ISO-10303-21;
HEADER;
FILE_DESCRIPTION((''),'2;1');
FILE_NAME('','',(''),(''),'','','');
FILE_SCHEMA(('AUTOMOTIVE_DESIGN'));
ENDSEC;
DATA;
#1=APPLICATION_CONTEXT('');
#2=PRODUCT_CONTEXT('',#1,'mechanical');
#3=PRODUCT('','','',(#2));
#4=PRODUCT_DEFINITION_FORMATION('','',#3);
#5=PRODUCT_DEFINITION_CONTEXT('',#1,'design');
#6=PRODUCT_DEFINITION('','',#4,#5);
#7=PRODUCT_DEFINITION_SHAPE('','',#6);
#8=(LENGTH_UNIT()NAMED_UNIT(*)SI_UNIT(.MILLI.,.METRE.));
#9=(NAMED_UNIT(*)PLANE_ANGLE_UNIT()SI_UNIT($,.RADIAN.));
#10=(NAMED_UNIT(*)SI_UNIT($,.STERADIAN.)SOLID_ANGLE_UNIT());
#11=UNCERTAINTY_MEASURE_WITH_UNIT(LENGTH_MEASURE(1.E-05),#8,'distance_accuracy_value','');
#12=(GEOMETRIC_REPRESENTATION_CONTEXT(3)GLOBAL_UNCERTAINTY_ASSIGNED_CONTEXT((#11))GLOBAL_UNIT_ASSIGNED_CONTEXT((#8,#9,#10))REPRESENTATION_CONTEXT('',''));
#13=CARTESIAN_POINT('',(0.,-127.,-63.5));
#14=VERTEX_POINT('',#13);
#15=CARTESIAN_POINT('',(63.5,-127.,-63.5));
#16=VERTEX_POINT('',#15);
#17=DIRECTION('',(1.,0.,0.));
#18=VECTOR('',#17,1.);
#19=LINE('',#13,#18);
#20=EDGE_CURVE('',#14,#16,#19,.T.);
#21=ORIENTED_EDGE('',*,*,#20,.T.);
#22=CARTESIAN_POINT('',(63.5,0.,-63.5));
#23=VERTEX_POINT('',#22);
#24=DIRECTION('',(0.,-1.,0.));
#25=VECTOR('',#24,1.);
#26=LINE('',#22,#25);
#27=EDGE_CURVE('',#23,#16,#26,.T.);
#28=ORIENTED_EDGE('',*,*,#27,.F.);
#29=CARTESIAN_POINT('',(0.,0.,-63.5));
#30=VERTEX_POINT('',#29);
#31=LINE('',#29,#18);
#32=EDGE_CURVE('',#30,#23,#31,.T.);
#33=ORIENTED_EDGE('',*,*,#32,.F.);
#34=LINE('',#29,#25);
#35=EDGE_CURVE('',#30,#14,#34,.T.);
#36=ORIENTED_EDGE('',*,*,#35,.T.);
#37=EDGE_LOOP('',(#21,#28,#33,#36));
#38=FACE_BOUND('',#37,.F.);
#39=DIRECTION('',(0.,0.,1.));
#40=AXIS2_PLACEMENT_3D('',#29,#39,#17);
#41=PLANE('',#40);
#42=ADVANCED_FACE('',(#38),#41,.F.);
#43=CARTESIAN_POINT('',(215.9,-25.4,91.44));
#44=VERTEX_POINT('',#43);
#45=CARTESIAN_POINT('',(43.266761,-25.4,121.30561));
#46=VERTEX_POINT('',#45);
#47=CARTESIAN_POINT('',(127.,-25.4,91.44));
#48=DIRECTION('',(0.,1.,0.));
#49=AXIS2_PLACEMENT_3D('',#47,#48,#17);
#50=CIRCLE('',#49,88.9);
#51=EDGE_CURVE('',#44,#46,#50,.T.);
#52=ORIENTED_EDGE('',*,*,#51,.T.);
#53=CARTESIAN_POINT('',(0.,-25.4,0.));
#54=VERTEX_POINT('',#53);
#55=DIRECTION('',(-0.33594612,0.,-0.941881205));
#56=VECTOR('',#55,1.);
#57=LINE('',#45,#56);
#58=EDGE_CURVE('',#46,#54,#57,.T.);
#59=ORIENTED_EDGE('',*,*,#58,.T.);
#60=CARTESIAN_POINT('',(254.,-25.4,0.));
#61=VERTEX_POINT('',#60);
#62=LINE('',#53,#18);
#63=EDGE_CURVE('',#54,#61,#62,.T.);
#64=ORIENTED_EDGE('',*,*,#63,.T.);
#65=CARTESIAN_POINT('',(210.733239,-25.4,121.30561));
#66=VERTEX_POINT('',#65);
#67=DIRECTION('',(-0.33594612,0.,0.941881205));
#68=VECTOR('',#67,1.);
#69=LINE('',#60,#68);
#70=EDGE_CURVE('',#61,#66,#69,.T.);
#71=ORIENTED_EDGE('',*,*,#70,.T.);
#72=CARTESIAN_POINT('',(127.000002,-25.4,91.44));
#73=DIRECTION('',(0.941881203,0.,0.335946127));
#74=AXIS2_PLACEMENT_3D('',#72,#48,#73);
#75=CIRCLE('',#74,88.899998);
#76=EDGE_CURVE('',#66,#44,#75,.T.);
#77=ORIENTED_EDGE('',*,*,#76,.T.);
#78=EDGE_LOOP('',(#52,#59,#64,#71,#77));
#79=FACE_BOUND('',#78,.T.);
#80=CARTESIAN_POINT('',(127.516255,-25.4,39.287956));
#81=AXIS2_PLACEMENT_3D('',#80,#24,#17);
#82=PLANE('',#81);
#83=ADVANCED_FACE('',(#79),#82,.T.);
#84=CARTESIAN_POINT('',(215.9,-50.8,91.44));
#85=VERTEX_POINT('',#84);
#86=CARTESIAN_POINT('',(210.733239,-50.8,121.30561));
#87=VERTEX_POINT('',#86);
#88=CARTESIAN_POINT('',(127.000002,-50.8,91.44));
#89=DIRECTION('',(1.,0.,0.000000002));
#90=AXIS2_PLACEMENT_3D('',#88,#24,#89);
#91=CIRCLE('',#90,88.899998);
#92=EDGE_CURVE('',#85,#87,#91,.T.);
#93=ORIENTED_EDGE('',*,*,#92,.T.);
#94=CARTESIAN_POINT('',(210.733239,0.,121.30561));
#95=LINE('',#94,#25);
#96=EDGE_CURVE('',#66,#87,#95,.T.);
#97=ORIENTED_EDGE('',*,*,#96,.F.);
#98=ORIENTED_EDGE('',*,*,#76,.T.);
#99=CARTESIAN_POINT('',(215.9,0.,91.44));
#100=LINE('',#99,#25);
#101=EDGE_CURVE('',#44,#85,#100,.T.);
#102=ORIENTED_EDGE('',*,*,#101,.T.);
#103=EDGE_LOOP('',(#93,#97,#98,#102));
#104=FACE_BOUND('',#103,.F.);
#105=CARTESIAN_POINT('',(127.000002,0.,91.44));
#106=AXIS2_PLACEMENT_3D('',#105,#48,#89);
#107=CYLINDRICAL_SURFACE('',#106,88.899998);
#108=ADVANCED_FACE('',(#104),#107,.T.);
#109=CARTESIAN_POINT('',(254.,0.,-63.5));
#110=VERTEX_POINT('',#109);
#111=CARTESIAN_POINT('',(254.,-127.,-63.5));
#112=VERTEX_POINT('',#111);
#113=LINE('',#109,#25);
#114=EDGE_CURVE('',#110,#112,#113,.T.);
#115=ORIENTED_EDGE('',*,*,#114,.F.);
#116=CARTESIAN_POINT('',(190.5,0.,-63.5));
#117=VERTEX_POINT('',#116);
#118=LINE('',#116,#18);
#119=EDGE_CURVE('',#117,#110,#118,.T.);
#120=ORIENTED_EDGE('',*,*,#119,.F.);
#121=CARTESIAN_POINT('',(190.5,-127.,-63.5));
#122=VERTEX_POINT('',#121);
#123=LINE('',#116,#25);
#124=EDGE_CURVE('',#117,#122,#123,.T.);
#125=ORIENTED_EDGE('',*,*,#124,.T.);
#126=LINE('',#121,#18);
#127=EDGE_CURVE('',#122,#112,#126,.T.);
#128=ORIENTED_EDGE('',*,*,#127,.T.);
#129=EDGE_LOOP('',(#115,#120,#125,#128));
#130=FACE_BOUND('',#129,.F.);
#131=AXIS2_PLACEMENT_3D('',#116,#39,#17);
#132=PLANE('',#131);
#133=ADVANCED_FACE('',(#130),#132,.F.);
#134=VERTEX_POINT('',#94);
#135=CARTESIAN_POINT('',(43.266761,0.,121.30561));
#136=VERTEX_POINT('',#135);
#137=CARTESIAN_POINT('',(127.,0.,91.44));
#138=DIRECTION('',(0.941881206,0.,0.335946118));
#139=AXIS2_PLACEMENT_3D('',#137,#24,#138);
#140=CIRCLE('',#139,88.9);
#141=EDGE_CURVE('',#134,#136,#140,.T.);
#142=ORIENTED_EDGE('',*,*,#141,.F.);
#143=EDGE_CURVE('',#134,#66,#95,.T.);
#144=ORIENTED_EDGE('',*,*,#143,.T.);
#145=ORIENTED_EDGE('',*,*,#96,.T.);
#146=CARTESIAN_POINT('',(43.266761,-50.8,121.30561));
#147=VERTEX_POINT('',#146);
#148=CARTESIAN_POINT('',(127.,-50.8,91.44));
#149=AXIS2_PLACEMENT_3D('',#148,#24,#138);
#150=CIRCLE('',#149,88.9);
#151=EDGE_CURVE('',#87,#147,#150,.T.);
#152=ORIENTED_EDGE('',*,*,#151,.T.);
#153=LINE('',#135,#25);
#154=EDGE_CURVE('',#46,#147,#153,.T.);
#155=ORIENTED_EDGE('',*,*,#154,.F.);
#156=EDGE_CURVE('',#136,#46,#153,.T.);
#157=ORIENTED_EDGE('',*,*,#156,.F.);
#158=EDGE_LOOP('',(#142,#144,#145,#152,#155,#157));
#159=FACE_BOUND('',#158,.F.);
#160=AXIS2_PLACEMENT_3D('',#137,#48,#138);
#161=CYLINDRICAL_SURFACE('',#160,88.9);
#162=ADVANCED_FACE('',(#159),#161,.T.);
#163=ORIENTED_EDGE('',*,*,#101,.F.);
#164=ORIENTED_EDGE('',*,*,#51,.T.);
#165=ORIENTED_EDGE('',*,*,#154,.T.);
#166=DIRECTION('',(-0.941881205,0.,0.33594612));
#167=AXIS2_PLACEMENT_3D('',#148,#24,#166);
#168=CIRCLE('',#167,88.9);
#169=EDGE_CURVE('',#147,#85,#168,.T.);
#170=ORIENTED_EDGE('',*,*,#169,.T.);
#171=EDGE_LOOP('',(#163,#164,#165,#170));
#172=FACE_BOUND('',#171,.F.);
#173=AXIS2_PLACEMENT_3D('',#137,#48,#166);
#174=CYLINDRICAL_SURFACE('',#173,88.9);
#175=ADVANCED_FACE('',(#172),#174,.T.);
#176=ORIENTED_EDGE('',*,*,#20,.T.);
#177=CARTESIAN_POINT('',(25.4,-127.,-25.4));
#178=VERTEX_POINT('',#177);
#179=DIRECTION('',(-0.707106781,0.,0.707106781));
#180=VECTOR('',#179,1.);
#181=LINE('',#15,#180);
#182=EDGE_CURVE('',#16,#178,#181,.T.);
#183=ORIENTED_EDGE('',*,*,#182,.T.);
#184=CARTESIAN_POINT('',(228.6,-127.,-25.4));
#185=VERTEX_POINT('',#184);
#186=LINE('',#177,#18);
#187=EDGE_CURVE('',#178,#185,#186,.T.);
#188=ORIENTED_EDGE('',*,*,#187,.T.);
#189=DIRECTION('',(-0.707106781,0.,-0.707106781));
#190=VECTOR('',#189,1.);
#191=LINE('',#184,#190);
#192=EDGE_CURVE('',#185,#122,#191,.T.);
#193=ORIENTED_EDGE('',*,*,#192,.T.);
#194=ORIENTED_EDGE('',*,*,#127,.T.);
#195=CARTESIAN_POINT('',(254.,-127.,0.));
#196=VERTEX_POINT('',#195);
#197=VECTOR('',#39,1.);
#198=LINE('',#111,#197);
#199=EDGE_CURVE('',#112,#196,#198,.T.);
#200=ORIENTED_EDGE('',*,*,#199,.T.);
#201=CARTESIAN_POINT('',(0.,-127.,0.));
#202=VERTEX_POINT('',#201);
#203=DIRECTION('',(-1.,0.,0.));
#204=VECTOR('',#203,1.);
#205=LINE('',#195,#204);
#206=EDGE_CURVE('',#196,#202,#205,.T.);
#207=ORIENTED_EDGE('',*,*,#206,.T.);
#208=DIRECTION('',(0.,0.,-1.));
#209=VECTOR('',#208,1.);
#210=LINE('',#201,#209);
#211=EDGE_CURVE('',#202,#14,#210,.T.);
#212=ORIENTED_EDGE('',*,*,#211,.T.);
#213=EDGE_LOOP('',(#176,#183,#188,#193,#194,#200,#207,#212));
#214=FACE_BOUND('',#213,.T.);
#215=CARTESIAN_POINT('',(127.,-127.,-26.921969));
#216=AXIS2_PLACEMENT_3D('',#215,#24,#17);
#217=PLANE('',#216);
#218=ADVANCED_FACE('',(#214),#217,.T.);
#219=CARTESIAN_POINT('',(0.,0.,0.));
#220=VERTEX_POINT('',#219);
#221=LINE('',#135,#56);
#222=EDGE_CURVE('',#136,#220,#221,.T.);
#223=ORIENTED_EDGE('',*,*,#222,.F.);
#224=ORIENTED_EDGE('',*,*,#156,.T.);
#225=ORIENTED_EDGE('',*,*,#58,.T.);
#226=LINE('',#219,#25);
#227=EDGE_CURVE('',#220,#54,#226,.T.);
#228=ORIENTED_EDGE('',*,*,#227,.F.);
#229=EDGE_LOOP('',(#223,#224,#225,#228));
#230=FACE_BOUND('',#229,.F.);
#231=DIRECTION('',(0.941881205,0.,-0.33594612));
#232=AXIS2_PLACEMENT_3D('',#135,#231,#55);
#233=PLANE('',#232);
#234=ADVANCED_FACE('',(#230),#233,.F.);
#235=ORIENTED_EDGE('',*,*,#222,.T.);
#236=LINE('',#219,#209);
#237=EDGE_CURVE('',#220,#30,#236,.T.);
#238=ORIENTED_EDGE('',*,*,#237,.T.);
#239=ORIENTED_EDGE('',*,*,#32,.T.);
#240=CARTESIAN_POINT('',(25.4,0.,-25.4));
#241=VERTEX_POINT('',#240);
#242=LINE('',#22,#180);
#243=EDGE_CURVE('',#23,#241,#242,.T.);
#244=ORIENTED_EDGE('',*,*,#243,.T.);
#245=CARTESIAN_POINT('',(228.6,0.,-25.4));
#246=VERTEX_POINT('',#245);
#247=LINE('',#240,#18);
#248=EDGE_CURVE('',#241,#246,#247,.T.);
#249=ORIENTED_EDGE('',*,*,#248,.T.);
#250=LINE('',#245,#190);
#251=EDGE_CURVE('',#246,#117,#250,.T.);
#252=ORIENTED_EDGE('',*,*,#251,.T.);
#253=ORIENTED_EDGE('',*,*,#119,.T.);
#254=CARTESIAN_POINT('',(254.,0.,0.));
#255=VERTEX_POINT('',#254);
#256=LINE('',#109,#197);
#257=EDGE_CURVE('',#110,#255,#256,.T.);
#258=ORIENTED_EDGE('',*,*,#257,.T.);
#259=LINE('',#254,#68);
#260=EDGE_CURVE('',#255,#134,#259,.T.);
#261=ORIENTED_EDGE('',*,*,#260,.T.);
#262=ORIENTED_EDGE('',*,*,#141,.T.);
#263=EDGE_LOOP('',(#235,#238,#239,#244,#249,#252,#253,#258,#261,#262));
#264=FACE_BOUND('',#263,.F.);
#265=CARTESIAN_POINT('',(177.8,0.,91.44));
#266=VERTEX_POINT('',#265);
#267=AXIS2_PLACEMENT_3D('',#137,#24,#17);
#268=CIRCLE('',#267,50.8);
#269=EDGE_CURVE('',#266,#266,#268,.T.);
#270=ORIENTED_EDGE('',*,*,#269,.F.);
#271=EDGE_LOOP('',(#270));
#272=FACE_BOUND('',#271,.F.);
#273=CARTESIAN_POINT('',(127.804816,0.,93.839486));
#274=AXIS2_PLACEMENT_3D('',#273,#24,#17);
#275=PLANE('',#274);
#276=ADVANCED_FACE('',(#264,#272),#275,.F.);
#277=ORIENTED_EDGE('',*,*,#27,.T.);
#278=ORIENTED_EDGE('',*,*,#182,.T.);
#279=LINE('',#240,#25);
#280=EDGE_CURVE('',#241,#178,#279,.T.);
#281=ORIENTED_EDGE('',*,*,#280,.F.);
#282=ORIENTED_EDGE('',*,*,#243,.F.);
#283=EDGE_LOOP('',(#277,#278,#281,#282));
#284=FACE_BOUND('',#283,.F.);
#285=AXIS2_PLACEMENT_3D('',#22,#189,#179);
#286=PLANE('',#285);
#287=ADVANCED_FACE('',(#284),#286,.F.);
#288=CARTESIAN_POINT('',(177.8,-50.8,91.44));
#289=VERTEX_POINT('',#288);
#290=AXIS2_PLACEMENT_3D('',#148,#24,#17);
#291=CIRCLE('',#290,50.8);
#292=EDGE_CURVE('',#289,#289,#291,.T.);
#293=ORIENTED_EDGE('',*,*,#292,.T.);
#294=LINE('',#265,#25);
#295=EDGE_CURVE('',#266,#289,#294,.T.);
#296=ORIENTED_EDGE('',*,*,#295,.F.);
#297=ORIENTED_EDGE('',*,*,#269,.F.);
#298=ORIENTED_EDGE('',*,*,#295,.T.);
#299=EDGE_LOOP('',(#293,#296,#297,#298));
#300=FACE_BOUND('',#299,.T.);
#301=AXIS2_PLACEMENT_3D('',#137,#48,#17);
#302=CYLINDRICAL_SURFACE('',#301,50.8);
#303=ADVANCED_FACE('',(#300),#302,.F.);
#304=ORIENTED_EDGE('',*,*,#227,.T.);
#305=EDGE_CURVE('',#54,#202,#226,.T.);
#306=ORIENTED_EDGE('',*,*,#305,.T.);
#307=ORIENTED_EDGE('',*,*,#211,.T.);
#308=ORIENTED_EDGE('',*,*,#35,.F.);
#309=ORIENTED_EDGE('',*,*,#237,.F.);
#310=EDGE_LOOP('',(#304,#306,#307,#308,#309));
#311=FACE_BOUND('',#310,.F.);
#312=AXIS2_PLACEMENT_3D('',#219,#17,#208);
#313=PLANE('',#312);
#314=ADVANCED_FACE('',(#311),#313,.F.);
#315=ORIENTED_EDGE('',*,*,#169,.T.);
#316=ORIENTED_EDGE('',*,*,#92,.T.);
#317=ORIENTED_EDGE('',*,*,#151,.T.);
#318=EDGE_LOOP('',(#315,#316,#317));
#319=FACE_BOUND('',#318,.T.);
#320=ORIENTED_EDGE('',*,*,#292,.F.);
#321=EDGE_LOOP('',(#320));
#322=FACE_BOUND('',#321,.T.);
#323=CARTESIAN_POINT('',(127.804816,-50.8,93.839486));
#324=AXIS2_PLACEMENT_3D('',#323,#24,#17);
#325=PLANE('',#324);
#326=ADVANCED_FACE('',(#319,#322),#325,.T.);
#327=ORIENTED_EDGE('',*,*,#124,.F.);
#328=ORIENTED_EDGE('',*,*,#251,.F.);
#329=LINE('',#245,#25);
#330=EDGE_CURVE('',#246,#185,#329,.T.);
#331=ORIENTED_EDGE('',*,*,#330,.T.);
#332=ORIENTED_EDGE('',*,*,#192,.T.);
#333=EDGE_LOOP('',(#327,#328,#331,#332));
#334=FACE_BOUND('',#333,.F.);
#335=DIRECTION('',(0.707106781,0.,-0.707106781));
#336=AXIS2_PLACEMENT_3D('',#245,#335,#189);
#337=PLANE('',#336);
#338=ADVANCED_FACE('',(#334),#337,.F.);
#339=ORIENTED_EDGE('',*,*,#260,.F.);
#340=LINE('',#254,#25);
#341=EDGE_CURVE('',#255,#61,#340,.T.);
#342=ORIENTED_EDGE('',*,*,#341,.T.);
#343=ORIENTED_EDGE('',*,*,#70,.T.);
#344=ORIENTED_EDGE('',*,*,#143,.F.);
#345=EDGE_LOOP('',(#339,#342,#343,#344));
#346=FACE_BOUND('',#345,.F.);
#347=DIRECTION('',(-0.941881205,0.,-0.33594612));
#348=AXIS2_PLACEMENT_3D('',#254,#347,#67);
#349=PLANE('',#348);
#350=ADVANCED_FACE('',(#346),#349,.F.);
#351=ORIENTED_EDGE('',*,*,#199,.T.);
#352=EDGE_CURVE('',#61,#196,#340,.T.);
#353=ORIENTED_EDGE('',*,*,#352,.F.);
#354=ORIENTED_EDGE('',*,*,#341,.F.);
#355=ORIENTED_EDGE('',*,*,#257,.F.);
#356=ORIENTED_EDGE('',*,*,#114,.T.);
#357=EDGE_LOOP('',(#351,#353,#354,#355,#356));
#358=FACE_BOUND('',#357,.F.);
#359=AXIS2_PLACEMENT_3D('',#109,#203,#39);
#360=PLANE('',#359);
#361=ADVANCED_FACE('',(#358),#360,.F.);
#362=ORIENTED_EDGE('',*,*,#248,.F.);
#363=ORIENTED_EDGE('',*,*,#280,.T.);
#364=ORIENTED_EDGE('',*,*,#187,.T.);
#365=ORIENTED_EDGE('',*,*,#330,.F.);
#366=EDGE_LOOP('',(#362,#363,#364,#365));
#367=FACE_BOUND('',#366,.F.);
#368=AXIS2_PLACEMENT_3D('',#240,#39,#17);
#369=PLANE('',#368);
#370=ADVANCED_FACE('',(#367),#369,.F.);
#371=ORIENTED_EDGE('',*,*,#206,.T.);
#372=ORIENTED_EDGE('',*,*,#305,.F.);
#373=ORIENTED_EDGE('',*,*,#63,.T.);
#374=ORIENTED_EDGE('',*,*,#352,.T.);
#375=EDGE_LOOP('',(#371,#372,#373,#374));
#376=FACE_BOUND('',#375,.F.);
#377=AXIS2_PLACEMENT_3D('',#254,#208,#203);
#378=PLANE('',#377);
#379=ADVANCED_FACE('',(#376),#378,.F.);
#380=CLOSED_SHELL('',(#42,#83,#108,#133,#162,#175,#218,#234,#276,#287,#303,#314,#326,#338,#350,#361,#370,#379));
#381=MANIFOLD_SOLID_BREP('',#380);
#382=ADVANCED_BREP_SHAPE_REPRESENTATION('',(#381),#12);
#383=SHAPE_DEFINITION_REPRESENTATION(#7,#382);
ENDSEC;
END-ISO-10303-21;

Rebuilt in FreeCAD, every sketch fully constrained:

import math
import FreeCAD as App
import Part
import Sketcher

V = App.Vector
Q = App.Units.Quantity

doc = App.newDocument("Part")
body = doc.addObject("PartDesign::Body", "Body")

# Sketch on XZ plane
sketch1 = doc.addObject("Sketcher::SketchObject", "Sketch")
body.addObject(sketch1)
sketch1.AttachmentSupport = (doc.XZ_Plane, [""])
sketch1.MapMode = "FlatFace"
sketch1.addGeometry(Part.LineSegment(V(254, 0, 0), V(0, 0, 0)), False)
sketch1.addGeometry(Part.LineSegment(V(0, 0, 0), V(0, -64, 0)), False)
sketch1.addGeometry(Part.LineSegment(V(0, -64, 0), V(64, -64, 0)), False)
sketch1.addGeometry(Part.LineSegment(V(64, -64, 0), V(25, -25, 0)), False)
sketch1.addGeometry(Part.LineSegment(V(25, -25, 0), V(229, -25, 0)), False)
sketch1.addGeometry(Part.LineSegment(V(229, -25, 0), V(190, -64, 0)), False)
sketch1.addGeometry(Part.LineSegment(V(190, -64, 0), V(254, -64, 0)), False)
sketch1.addGeometry(Part.LineSegment(V(254, -64, 0), V(254, 0, 0)), False)
sketch1.addConstraint(Sketcher.Constraint("Coincident", 0, 2, 1, 1))
sketch1.addConstraint(Sketcher.Constraint("Coincident", 1, 2, 2, 1))
sketch1.addConstraint(Sketcher.Constraint("Coincident", 2, 2, 3, 1))
sketch1.addConstraint(Sketcher.Constraint("Coincident", 3, 2, 4, 1))
sketch1.addConstraint(Sketcher.Constraint("Coincident", 4, 2, 5, 1))
sketch1.addConstraint(Sketcher.Constraint("Coincident", 5, 2, 6, 1))
sketch1.addConstraint(Sketcher.Constraint("Coincident", 6, 2, 7, 1))
sketch1.addConstraint(Sketcher.Constraint("Coincident", 7, 2, 0, 1))
sketch1.addConstraint(Sketcher.Constraint("Horizontal", 0))
sketch1.addConstraint(Sketcher.Constraint("Vertical", 1))
sketch1.addConstraint(Sketcher.Constraint("Horizontal", 2))
sketch1.addConstraint(Sketcher.Constraint("Horizontal", 4))
sketch1.addConstraint(Sketcher.Constraint("Horizontal", 6))
sketch1.addConstraint(Sketcher.Constraint("Vertical", 7))
sketch1.addConstraint(Sketcher.Constraint("Coincident", 0, 2, -1, 1))
sketch1.addConstraint(Sketcher.Constraint("Perpendicular", 3, 5))
sketch1.addConstraint(Sketcher.Constraint("Horizontal", 2, 2, 5, 2))
sketch1.addConstraint(Sketcher.Constraint("Equal", 2, 6))
sketch1.addConstraint(Sketcher.Constraint("Equal", 6, 1))
sketch1.addConstraint(Sketcher.Constraint("Equal", 3, 5))
sketch1.addConstraint(Sketcher.Constraint("DistanceX", 0, 2, 0, 1, Q("10 in")))
sketch1.addConstraint(Sketcher.Constraint("DistanceX", 4, 1, 4, 2, Q("8 in")))
sketch1.addConstraint(Sketcher.Constraint("DistanceX", 2, 1, 2, 2, Q("2.5 in")))
pad1 = doc.addObject("PartDesign::Pad", "Pad")
body.addObject(pad1)
pad1.Profile = sketch1
pad1.Length = Q("5 in")

# Sketch on XZ plane
sketch2 = doc.addObject("Sketcher::SketchObject", "Sketch001")
body.addObject(sketch2)
sketch2.AttachmentSupport = (doc.XZ_Plane, [""])
sketch2.MapMode = "FlatFace"
sketch2.addGeometry(Part.LineSegment(V(43, 121, 0), V(0, 0, 0)), False)
sketch2.addGeometry(Part.LineSegment(V(0, 0, 0), V(254, 0, 0)), False)
sketch2.addGeometry(Part.LineSegment(V(254, 0, 0), V(211, 121, 0)), False)
sketch2.addGeometry(Part.ArcOfCircle(Part.Circle(V(127, 91, 0), V(0, 0, 1), 89), math.radians(0), math.radians(19.63)), False)
sketch2.addGeometry(Part.ArcOfCircle(Part.Circle(V(127, 91, 0), V(0, 0, 1), 89), math.radians(160), math.radians(360)), False)
sketch2.addConstraint(Sketcher.Constraint("Coincident", 0, 2, 1, 1))
sketch2.addConstraint(Sketcher.Constraint("Coincident", 1, 2, 2, 1))
sketch2.addConstraint(Sketcher.Constraint("Tangent", 2, 2, 3, 2))
sketch2.addConstraint(Sketcher.Constraint("Tangent", 3, 1, 4, 2))
sketch2.addConstraint(Sketcher.Constraint("Tangent", 4, 1, 0, 1))
sketch2.addConstraint(Sketcher.Constraint("Horizontal", 1))
sketch2.addConstraint(Sketcher.Constraint("Coincident", 0, 2, -1, 1))
sketch2.addConstraint(Sketcher.Constraint("Equal", 3, 4))
sketch2.addConstraint(Sketcher.Constraint("Horizontal", 4, 3, 3, 1))
sketch2.addConstraint(Sketcher.Constraint("Horizontal", 2, 2, 4, 1))
sketch2.addConstraint(Sketcher.Constraint("Radius", 3, Q("3.4999999 in")))
sketch2.addConstraint(Sketcher.Constraint("DistanceX", 1, 1, 1, 2, Q("10 in")))
sketch2.addConstraint(Sketcher.Constraint("DistanceY", -1, 1, 3, 3, Q("3.6 in")))
pad2 = doc.addObject("PartDesign::Pad", "Pad001")
body.addObject(pad2)
pad2.Profile = sketch2
pad2.Length = Q("1 in")

# Sketch on XZ plane
sketch3 = doc.addObject("Sketcher::SketchObject", "Sketch002")
body.addObject(sketch3)
sketch3.AttachmentSupport = (doc.XZ_Plane, [""])
sketch3.MapMode = "FlatFace"
sketch3.addGeometry(Part.ArcOfCircle(Part.Circle(V(127, 91, 0), V(0, 0, 1), 89), math.radians(20), math.radians(160)), False)
sketch3.addGeometry(Part.ArcOfCircle(Part.Circle(V(127, 91, 0), V(0, 0, 1), 89), math.radians(160), math.radians(360)), False)
sketch3.addGeometry(Part.ArcOfCircle(Part.Circle(V(127, 91, 0), V(0, 0, 1), 89), math.radians(0), math.radians(19.63)), False)
sketch3.addGeometry(Part.Circle(V(127, 91, 0), V(0, 0, 1), 51), False)
sketch3.addConstraint(Sketcher.Constraint("Tangent", 0, 2, 1, 1))
sketch3.addConstraint(Sketcher.Constraint("Tangent", 1, 2, 2, 1))
sketch3.addConstraint(Sketcher.Constraint("Tangent", 2, 2, 0, 1))
sketch3.addConstraint(Sketcher.Constraint("Coincident", 3, 3, 0, 3))
sketch3.addConstraint(Sketcher.Constraint("Horizontal", 3, 3, 1, 2))
sketch3.addConstraint(Sketcher.Constraint("Horizontal", 0, 2, 2, 2))
sketch3.addConstraint(Sketcher.Constraint("Diameter", 3, Q("4 in")))
sketch3.addConstraint(Sketcher.Constraint("Radius", 0, Q("3.5 in")))
sketch3.addConstraint(Sketcher.Constraint("DistanceX", -1, 1, 0, 3, Q("5 in")))
sketch3.addConstraint(Sketcher.Constraint("DistanceY", -1, 1, 0, 3, Q("3.6 in")))
sketch3.addConstraint(Sketcher.Constraint("DistanceX", -1, 1, 0, 2, 43.266761))
pad3 = doc.addObject("PartDesign::Pad", "Pad002")
body.addObject(pad3)
pad3.Profile = sketch3
pad3.Length = Q("2 in")

doc.recompute()
